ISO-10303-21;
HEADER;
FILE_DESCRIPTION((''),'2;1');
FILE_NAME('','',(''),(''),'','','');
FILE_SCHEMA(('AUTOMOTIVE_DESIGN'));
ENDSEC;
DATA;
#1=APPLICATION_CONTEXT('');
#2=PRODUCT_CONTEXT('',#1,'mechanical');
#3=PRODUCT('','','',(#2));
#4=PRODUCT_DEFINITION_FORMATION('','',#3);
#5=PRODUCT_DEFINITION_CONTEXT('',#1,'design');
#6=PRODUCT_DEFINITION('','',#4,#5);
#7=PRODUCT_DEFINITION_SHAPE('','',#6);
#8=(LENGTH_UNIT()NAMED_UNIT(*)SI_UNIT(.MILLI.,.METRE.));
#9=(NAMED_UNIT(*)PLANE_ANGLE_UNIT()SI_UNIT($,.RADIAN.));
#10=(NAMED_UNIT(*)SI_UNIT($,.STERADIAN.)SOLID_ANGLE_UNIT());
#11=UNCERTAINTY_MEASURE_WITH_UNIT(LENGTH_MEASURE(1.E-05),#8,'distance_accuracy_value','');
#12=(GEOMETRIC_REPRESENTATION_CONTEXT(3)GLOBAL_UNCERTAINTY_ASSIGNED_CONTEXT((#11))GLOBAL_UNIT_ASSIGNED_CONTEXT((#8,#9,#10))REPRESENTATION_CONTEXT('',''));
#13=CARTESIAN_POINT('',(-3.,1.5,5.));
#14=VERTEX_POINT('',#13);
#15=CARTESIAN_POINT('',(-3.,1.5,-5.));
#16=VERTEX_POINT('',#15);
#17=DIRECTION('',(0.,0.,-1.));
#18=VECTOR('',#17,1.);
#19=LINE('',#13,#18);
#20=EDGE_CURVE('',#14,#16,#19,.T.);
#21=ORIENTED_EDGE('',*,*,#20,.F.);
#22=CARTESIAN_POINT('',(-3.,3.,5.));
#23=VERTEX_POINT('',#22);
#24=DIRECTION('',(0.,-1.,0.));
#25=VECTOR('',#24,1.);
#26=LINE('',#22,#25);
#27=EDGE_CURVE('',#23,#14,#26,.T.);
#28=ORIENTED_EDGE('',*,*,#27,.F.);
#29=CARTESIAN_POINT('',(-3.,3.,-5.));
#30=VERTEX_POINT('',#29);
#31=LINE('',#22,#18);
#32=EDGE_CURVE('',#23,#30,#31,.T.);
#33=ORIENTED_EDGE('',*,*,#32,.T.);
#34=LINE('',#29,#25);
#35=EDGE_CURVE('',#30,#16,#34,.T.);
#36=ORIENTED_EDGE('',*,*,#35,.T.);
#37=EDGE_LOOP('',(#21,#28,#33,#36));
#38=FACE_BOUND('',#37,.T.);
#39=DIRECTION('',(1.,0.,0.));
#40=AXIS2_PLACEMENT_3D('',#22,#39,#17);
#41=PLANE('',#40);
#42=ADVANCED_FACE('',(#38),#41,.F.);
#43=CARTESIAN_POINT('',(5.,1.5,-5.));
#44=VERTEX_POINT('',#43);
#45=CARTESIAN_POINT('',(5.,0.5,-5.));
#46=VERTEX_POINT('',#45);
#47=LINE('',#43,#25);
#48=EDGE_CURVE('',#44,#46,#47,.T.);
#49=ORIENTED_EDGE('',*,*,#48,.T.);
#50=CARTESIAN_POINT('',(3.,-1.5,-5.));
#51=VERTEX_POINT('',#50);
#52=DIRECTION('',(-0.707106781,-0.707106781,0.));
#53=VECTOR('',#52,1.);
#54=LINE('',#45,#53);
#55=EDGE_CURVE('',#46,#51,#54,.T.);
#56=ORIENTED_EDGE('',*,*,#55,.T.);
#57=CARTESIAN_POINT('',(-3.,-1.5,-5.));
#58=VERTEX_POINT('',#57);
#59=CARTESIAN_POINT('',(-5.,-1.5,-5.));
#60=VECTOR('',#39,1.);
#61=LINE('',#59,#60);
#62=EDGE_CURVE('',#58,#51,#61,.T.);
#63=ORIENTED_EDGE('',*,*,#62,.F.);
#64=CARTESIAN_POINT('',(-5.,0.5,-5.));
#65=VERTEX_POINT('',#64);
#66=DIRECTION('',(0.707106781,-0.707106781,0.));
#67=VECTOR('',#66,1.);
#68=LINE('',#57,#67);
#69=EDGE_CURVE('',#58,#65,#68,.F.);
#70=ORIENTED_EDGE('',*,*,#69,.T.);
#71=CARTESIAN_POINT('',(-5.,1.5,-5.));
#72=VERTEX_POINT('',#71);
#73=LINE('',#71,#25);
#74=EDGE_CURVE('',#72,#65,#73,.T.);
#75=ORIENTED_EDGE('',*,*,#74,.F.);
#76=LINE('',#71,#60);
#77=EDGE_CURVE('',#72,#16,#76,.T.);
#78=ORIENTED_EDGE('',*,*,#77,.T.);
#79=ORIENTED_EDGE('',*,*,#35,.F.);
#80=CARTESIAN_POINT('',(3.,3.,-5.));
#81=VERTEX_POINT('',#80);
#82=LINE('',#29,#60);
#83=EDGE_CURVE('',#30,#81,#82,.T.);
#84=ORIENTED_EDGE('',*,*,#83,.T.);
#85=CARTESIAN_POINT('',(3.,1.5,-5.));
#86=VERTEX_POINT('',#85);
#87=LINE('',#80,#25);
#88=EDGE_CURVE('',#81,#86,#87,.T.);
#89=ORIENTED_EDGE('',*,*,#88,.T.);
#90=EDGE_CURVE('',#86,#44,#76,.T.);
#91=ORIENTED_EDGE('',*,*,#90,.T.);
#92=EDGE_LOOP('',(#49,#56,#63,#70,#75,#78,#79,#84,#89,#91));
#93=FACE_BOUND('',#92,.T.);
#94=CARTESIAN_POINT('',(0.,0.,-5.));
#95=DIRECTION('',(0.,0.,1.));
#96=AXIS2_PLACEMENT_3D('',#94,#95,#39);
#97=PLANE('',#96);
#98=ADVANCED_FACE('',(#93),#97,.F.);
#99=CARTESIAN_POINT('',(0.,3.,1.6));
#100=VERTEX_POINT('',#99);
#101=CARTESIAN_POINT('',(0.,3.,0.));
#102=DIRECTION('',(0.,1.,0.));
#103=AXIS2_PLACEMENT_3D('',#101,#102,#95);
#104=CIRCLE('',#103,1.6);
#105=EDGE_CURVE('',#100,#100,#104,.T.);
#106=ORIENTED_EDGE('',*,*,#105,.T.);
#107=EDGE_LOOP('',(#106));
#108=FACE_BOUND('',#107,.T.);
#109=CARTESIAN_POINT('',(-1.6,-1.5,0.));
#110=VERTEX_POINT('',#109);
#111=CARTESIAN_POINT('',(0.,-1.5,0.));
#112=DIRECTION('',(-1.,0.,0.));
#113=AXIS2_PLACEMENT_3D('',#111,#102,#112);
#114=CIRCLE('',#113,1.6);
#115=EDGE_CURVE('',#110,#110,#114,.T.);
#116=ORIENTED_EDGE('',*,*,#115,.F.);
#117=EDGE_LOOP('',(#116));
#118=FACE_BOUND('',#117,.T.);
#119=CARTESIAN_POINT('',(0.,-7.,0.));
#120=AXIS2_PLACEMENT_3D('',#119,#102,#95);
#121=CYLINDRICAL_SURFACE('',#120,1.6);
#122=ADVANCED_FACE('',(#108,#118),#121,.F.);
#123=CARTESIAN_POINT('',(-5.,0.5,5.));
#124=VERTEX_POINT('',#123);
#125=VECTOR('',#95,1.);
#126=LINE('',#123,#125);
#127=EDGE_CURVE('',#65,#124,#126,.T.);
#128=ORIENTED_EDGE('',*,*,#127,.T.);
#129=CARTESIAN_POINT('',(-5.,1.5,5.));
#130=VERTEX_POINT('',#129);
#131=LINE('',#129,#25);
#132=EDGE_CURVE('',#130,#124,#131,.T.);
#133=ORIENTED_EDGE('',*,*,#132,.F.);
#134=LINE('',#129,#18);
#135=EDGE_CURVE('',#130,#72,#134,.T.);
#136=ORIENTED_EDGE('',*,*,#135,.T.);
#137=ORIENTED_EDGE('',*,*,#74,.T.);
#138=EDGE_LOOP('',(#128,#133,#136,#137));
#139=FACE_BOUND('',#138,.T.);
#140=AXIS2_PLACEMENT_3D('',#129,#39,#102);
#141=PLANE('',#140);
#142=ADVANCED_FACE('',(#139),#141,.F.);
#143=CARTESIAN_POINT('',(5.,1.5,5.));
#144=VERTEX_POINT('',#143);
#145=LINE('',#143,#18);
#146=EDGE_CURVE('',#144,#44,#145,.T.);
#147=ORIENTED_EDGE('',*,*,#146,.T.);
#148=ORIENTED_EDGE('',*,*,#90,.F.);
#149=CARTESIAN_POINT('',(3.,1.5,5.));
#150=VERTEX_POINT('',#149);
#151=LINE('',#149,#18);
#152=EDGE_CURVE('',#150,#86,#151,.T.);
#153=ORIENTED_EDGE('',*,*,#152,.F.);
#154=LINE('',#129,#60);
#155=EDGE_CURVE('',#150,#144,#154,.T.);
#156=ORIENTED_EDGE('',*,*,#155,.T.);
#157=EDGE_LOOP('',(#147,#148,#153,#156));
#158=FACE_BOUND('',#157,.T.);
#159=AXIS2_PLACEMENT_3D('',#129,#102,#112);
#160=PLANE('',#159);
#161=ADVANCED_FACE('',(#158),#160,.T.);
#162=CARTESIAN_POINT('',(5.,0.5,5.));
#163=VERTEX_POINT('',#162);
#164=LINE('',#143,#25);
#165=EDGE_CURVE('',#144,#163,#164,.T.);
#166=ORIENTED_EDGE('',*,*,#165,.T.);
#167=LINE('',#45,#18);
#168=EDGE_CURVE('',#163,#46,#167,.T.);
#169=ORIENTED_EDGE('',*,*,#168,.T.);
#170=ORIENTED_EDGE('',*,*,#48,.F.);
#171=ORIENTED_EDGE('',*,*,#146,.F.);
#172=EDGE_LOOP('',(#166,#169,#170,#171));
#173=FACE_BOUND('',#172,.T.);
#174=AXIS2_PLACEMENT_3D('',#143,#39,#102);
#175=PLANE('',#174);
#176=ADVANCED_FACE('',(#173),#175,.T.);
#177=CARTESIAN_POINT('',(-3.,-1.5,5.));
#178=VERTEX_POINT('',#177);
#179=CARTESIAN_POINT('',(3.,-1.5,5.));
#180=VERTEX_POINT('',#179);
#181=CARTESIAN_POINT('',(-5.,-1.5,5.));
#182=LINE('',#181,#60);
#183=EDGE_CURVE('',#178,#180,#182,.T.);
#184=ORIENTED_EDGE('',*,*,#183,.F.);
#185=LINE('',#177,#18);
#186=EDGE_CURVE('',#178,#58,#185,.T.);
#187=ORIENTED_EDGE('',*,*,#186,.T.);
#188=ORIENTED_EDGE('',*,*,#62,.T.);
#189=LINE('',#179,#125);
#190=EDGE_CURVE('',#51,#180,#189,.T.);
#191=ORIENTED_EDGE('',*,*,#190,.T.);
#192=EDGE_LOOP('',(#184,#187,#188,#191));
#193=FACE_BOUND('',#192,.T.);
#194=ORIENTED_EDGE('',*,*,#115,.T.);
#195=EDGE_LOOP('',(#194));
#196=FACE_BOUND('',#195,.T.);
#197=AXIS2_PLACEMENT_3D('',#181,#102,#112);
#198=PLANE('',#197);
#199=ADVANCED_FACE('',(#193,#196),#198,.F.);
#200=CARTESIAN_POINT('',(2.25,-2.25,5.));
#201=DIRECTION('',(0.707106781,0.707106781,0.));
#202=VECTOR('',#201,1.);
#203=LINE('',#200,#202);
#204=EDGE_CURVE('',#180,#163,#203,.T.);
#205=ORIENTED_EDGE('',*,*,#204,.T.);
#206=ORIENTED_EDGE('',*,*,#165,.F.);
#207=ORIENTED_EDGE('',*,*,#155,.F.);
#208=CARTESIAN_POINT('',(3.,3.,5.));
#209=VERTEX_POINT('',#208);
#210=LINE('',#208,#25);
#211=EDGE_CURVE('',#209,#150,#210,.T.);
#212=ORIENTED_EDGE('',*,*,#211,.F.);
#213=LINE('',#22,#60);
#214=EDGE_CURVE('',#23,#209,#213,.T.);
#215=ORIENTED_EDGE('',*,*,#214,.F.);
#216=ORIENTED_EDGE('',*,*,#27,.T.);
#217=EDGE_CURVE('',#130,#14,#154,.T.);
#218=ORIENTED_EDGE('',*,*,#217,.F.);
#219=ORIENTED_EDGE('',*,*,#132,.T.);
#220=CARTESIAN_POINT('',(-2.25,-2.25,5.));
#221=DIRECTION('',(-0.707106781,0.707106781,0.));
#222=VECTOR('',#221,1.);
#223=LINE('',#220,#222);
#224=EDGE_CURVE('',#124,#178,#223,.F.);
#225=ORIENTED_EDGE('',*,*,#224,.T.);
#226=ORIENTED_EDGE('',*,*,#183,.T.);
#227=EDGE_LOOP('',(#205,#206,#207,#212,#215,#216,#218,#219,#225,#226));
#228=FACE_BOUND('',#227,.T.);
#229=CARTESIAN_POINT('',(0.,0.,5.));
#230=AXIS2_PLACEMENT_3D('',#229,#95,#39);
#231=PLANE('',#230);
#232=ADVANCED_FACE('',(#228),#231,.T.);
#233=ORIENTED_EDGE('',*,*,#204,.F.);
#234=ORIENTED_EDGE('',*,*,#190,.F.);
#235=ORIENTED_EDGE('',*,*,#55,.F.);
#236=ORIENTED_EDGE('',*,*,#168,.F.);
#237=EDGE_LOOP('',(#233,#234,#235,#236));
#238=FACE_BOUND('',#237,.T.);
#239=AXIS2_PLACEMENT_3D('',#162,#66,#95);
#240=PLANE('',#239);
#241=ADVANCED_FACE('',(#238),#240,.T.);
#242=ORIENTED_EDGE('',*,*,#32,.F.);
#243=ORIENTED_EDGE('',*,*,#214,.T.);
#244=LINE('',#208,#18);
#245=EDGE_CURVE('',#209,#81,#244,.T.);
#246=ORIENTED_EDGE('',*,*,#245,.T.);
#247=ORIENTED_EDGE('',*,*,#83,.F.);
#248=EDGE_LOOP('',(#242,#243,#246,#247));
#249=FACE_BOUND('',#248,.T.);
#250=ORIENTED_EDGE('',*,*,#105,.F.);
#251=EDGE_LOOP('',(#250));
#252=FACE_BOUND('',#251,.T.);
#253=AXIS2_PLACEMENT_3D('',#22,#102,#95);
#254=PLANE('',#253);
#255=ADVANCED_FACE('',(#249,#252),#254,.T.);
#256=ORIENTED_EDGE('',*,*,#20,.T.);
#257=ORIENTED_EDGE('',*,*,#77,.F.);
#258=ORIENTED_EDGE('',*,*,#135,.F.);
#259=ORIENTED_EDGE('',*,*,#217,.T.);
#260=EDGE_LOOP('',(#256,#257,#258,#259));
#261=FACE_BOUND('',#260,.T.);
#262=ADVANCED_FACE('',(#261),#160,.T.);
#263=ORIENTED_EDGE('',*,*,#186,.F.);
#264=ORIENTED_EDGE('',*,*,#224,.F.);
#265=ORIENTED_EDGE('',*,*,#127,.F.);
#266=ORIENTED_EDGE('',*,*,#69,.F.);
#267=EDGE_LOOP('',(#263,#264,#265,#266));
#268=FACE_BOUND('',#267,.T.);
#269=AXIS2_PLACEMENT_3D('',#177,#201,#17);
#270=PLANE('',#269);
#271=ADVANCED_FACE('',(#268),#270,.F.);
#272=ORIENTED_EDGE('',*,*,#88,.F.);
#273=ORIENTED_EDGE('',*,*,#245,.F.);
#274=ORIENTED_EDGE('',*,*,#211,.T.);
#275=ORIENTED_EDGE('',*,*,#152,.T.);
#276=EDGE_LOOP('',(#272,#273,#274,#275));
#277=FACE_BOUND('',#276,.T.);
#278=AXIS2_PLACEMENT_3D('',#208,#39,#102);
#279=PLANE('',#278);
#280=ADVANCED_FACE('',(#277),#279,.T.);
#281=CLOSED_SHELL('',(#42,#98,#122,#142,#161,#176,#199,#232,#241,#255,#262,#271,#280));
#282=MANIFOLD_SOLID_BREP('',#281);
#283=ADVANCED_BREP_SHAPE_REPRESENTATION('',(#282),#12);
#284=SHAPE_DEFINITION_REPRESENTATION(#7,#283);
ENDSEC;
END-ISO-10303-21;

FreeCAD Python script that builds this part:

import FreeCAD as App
import Part
import Sketcher
from FreeCAD import Vector


def edges_at(feature, points):
    """Names of the edges that pass closest to the given points."""
    edges = feature.Shape.Edges
    near = lambda p: min(range(len(edges)), key=lambda i: edges[i].distToShape(Part.Vertex(*p))[0])
    return sorted({f"Edge{near(p) + 1}" for p in points})

doc = App.newDocument("Part")
body = doc.addObject("PartDesign::Body", "Body")

# Sketch on XY plane
sketch1 = body.newObject("Sketcher::SketchObject", "Sketch")
sketch1.AttachmentSupport = (doc.getObject("XY_Plane"), [""])
sketch1.MapMode = "FlatFace"
sketch1.addGeometry([
    Part.LineSegment(Vector(-5, 1.5, 0), Vector(-5, -1.5, 0)),  # 0
    Part.LineSegment(Vector(-5, -1.5, 0), Vector(5, -1.5, 0)),  # 1
    Part.LineSegment(Vector(5, -1.5, 0), Vector(5, 1.5, 0)),  # 2
    Part.LineSegment(Vector(5, 1.5, 0), Vector(3, 1.5, 0)),  # 3
    Part.LineSegment(Vector(3, 1.5, 0), Vector(3, 3, 0)),  # 4
    Part.LineSegment(Vector(3, 3, 0), Vector(-3, 3, 0)),  # 5
    Part.LineSegment(Vector(-3, 3, 0), Vector(-3, 1.5, 0)),  # 6
    Part.LineSegment(Vector(-3, 1.5, 0), Vector(-5, 1.5, 0)),  # 7
], False)
sketch1.addConstraint([
    Sketcher.Constraint("Coincident", 0, 2, 1, 1),
    Sketcher.Constraint("Coincident", 1, 2, 2, 1),
    Sketcher.Constraint("Coincident", 2, 2, 3, 1),
    Sketcher.Constraint("Coincident", 3, 2, 4, 1),
    Sketcher.Constraint("Coincident", 4, 2, 5, 1),
    Sketcher.Constraint("Coincident", 5, 2, 6, 1),
    Sketcher.Constraint("Coincident", 6, 2, 7, 1),
    Sketcher.Constraint("Coincident", 7, 2, 0, 1),
    Sketcher.Constraint("Vertical", 0),
    Sketcher.Constraint("Horizontal", 1),
    Sketcher.Constraint("Vertical", 2),
    Sketcher.Constraint("Horizontal", 3),
    Sketcher.Constraint("Vertical", 4),
    Sketcher.Constraint("Horizontal", 5),
    Sketcher.Constraint("Vertical", 6),
    Sketcher.Constraint("Horizontal", 7),
    Sketcher.Constraint("Symmetric", 0, 2, 2, 2, -1, 1),
    Sketcher.Constraint("Symmetric", 3, 2, 6, 2, -2),
    Sketcher.Constraint("DistanceX", 1, 1, 1, 2, 10.0),
    Sketcher.Constraint("DistanceX", 3, 2, 3, 1, 2.0),
    Sketcher.Constraint("DistanceY", 0, 2, 0, 1, 3.0),
    Sketcher.Constraint("DistanceY", 4, 1, 4, 2, 1.5),
])
pad1 = body.newObject("PartDesign::Pad", "Pad")
pad1.Profile = sketch1
pad1.Length = 10
pad1.Midplane = True

# Sketch on XZ plane
sketch2 = body.newObject("Sketcher::SketchObject", "Sketch001")
sketch2.AttachmentSupport = (doc.getObject("XZ_Plane"), [""])
sketch2.MapMode = "FlatFace"
sketch2.AttachmentOffset = App.Placement(Vector(0, 0, -3), App.Rotation())
sketch2.addGeometry(Part.Circle(Vector(0, 0, 0), Vector(0, 0, 1), 1.6), False)
sketch2.addConstraint([
    Sketcher.Constraint("Coincident", 0, 3, -1, 1),
    Sketcher.Constraint("Diameter", 0, 3.2),
])
pocket1 = body.newObject("PartDesign::Pocket", "Pocket")
pocket1.Profile = sketch2
pocket1.Length = 10
pocket1.Reversed = True
doc.recompute()

chamfer = body.newObject("PartDesign::Chamfer", "Chamfer")
chamfer.Base = (pocket1, edges_at(pocket1, [(5, -1.5, 0), (-5, -1.5, 0)]))
chamfer.Size = 2

doc.recompute()
